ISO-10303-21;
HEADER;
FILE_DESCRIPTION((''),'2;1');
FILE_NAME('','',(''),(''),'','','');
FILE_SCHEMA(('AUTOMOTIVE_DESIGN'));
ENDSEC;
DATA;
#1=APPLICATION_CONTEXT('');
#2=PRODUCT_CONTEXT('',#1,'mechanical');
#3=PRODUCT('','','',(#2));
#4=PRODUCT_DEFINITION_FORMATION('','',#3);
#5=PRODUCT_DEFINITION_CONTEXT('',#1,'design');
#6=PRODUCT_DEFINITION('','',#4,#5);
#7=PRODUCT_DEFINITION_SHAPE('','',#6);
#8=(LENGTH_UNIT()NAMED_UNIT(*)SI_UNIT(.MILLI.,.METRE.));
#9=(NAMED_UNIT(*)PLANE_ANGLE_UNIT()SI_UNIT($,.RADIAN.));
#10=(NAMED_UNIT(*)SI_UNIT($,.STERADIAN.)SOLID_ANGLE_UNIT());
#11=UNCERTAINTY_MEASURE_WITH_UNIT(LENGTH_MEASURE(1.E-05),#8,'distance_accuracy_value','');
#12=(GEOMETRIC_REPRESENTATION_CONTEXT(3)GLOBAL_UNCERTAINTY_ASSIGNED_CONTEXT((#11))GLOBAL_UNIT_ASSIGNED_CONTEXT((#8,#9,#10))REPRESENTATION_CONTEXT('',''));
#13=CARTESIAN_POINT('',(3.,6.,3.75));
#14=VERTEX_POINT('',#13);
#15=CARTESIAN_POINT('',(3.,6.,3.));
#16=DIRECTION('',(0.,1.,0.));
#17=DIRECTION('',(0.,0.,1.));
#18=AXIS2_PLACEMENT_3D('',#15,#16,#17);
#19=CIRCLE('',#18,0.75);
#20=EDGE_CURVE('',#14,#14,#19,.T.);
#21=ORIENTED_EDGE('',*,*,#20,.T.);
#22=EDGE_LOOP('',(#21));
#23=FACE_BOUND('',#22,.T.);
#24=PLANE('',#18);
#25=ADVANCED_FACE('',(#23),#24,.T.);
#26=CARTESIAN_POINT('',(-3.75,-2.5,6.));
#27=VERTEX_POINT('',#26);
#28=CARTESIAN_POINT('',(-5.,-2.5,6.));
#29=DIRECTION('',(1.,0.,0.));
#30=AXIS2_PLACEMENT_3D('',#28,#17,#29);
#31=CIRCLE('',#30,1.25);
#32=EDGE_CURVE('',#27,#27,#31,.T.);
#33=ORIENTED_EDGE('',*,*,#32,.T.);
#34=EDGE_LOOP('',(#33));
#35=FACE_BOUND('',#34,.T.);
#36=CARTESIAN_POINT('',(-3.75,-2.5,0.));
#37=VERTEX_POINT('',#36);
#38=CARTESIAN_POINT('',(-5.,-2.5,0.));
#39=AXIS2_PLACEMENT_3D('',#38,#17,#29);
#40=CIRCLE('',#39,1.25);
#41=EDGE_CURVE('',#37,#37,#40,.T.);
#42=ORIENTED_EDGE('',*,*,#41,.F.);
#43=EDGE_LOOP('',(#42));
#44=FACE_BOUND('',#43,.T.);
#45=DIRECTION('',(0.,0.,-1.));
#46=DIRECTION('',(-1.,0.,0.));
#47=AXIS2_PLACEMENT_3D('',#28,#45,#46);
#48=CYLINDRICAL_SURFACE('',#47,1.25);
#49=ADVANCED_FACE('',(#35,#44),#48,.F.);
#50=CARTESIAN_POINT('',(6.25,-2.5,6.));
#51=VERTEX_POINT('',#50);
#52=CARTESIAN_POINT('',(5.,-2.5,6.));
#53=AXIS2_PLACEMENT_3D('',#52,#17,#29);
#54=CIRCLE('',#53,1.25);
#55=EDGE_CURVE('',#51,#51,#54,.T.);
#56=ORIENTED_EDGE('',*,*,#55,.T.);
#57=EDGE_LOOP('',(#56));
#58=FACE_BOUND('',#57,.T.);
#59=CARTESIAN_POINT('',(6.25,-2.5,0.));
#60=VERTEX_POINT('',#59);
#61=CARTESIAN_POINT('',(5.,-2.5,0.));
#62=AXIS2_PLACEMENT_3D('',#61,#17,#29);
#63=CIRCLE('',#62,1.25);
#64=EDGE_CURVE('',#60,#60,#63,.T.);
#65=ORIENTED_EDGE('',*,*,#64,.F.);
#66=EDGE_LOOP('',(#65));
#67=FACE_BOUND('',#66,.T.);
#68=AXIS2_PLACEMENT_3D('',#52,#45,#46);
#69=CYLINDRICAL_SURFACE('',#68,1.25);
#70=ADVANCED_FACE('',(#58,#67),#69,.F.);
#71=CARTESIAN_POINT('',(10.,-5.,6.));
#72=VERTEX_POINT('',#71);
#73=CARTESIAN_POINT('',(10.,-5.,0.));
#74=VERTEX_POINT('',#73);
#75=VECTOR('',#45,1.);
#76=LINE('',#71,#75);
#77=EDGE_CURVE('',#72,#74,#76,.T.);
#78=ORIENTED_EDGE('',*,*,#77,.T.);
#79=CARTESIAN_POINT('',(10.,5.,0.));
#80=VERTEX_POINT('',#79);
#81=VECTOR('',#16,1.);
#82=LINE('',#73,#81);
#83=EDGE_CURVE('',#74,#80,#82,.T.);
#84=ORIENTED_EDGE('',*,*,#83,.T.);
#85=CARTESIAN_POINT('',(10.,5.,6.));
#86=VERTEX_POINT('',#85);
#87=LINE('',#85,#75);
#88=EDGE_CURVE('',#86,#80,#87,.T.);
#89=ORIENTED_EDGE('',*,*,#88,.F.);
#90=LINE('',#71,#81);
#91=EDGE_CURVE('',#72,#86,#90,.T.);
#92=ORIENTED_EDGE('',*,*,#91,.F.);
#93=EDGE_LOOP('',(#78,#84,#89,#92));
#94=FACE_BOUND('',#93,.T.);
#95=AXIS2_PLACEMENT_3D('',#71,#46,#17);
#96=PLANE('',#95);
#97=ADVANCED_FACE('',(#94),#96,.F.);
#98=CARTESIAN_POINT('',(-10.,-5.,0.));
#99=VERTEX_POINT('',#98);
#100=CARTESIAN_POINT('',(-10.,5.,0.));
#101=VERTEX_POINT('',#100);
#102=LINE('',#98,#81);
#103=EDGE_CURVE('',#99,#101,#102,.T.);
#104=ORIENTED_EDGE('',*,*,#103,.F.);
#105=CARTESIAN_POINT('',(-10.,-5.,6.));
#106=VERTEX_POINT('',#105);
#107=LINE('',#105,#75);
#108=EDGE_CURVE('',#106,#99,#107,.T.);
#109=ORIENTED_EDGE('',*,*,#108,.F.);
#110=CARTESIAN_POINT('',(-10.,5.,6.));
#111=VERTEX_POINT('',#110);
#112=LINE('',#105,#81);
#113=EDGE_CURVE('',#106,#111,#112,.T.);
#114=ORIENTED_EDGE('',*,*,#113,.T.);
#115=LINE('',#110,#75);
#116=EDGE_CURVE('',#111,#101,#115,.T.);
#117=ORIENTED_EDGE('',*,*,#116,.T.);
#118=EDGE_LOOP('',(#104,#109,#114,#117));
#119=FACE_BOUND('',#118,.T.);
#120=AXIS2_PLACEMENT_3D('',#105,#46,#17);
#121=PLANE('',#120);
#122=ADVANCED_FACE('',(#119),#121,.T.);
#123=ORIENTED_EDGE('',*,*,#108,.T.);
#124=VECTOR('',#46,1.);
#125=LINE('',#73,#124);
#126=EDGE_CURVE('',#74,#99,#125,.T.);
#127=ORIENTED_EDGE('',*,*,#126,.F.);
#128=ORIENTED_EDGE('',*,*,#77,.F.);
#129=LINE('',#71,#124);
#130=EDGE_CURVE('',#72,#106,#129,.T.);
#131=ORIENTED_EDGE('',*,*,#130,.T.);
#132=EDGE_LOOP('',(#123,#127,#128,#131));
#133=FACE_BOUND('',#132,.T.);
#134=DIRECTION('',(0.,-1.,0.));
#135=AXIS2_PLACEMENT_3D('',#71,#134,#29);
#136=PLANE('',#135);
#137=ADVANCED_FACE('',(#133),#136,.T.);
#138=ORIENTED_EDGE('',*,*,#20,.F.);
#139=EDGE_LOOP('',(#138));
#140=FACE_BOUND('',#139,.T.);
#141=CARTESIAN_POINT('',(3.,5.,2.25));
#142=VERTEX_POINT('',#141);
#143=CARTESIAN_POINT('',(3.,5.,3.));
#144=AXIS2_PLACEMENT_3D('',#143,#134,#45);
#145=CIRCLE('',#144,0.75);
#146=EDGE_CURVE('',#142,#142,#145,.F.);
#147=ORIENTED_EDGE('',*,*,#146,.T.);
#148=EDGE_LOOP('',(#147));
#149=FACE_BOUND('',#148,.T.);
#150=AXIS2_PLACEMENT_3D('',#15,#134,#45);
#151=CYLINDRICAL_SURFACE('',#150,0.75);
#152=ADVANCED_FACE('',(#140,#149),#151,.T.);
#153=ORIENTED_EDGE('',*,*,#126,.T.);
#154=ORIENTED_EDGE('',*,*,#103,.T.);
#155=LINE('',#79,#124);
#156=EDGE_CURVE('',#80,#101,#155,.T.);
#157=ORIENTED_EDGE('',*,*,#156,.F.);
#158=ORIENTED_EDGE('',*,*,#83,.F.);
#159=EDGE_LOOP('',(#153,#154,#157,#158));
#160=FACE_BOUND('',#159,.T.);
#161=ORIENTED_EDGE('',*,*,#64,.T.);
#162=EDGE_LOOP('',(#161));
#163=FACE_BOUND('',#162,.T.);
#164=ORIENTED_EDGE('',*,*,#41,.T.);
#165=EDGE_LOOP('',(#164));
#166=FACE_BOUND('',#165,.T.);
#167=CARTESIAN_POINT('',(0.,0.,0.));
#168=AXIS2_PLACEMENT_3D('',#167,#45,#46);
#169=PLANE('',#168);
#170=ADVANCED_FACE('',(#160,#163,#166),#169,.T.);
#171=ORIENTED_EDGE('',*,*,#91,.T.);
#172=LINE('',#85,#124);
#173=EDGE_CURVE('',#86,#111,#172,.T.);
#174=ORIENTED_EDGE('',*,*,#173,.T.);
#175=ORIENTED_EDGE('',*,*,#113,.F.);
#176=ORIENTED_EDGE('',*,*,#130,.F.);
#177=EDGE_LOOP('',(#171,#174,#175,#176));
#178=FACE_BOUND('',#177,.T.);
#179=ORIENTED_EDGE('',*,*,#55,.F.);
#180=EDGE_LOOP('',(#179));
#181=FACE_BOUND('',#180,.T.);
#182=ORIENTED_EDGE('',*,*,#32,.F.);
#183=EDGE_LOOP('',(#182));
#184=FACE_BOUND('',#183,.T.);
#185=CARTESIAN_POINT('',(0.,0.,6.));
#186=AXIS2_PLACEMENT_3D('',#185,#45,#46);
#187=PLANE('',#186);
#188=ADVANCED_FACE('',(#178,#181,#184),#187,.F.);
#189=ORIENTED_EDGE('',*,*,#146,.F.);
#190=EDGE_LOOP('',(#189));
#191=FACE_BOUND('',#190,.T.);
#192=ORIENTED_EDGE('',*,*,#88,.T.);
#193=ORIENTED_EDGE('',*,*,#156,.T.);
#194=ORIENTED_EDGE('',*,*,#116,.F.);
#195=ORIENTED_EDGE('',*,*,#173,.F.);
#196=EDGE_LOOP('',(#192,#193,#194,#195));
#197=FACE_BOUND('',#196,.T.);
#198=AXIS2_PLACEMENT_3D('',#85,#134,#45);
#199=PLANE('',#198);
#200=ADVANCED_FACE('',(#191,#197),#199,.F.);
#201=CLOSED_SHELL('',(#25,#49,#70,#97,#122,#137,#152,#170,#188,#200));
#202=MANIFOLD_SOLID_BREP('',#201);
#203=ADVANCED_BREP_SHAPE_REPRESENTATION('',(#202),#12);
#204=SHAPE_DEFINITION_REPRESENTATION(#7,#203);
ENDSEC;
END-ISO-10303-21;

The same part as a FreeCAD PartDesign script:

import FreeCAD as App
import Part
import Sketcher
Q = App.Units.Quantity

doc = App.newDocument("Part")
body = doc.addObject("PartDesign::Body", "Body")

# Sketch on XY plane
sketch1 = doc.addObject("Sketcher::SketchObject", "Sketch")
body.addObject(sketch1)
sketch1.AttachmentSupport = (doc.XY_Plane, [""])
sketch1.MapMode = "FlatFace"
sketch1.addGeometry([
    Part.LineSegment(App.Vector(-10, 5, 0), App.Vector(-10, -5, 0)),  # 0
    Part.LineSegment(App.Vector(-10, -5, 0), App.Vector(10, -5, 0)),  # 1
    Part.LineSegment(App.Vector(10, -5, 0), App.Vector(10, 5, 0)),  # 2
    Part.LineSegment(App.Vector(10, 5, 0), App.Vector(-10, 5, 0)),  # 3
    Part.Circle(App.Vector(-5, -2.5, 0), App.Vector(0, 0, 1), 1.2),  # 4
    Part.Circle(App.Vector(5, -2.5, 0), App.Vector(0, 0, 1), 1.2),  # 5
], False)
sketch1.addConstraint([
    Sketcher.Constraint("Coincident", 0, 2, 1, 1),
    Sketcher.Constraint("Coincident", 1, 2, 2, 1),
    Sketcher.Constraint("Coincident", 2, 2, 3, 1),
    Sketcher.Constraint("Coincident", 3, 2, 0, 1),
    Sketcher.Constraint("Vertical", 0),
    Sketcher.Constraint("Horizontal", 1),
    Sketcher.Constraint("Vertical", 2),
    Sketcher.Constraint("Horizontal", 3),
    Sketcher.Constraint("Equal", 4, 5),
    Sketcher.Constraint("Symmetric", 0, 2, 2, 2, -1, 1),
    Sketcher.Constraint("Symmetric", 4, 3, 5, 3, -2),
    Sketcher.Constraint("Diameter", 4, Q("2.5 mm")),
    Sketcher.Constraint("DistanceX", 1, 1, 1, 2, Q("20 mm")),
    Sketcher.Constraint("DistanceY", 0, 2, 0, 1, Q("10 mm")),
    Sketcher.Constraint("DistanceX", 4, 3, -1, 1, Q("5 mm")),
    Sketcher.Constraint("DistanceY", 4, 3, -1, 1, Q("2.5 mm")),
])
pad1 = doc.addObject("PartDesign::Pad", "Pad")
body.addObject(pad1)
pad1.Profile = sketch1
pad1.Length = 6

# Sketch on XZ plane
sketch2 = doc.addObject("Sketcher::SketchObject", "Sketch001")
body.addObject(sketch2)
sketch2.AttachmentSupport = (doc.XZ_Plane, [""])
sketch2.MapMode = "FlatFace"
sketch2.AttachmentOffset = App.Placement(App.Vector(0, 0, -5), App.Rotation())
sketch2.addGeometry(Part.Circle(App.Vector(3, 3, 0), App.Vector(0, 0, 1), 0.8), False)
sketch2.addConstraint([
    Sketcher.Constraint("Diameter", 0, Q("1.5 mm")),
    Sketcher.Constraint("DistanceX", -1, 1, 0, 3, Q("3 mm")),
    Sketcher.Constraint("DistanceY", -1, 1, 0, 3, Q("3 mm")),
])
pad2 = doc.addObject("PartDesign::Pad", "Pad001")
body.addObject(pad2)
pad2.Profile = sketch2
pad2.Length = 1
pad2.Reversed = True

doc.recompute()
